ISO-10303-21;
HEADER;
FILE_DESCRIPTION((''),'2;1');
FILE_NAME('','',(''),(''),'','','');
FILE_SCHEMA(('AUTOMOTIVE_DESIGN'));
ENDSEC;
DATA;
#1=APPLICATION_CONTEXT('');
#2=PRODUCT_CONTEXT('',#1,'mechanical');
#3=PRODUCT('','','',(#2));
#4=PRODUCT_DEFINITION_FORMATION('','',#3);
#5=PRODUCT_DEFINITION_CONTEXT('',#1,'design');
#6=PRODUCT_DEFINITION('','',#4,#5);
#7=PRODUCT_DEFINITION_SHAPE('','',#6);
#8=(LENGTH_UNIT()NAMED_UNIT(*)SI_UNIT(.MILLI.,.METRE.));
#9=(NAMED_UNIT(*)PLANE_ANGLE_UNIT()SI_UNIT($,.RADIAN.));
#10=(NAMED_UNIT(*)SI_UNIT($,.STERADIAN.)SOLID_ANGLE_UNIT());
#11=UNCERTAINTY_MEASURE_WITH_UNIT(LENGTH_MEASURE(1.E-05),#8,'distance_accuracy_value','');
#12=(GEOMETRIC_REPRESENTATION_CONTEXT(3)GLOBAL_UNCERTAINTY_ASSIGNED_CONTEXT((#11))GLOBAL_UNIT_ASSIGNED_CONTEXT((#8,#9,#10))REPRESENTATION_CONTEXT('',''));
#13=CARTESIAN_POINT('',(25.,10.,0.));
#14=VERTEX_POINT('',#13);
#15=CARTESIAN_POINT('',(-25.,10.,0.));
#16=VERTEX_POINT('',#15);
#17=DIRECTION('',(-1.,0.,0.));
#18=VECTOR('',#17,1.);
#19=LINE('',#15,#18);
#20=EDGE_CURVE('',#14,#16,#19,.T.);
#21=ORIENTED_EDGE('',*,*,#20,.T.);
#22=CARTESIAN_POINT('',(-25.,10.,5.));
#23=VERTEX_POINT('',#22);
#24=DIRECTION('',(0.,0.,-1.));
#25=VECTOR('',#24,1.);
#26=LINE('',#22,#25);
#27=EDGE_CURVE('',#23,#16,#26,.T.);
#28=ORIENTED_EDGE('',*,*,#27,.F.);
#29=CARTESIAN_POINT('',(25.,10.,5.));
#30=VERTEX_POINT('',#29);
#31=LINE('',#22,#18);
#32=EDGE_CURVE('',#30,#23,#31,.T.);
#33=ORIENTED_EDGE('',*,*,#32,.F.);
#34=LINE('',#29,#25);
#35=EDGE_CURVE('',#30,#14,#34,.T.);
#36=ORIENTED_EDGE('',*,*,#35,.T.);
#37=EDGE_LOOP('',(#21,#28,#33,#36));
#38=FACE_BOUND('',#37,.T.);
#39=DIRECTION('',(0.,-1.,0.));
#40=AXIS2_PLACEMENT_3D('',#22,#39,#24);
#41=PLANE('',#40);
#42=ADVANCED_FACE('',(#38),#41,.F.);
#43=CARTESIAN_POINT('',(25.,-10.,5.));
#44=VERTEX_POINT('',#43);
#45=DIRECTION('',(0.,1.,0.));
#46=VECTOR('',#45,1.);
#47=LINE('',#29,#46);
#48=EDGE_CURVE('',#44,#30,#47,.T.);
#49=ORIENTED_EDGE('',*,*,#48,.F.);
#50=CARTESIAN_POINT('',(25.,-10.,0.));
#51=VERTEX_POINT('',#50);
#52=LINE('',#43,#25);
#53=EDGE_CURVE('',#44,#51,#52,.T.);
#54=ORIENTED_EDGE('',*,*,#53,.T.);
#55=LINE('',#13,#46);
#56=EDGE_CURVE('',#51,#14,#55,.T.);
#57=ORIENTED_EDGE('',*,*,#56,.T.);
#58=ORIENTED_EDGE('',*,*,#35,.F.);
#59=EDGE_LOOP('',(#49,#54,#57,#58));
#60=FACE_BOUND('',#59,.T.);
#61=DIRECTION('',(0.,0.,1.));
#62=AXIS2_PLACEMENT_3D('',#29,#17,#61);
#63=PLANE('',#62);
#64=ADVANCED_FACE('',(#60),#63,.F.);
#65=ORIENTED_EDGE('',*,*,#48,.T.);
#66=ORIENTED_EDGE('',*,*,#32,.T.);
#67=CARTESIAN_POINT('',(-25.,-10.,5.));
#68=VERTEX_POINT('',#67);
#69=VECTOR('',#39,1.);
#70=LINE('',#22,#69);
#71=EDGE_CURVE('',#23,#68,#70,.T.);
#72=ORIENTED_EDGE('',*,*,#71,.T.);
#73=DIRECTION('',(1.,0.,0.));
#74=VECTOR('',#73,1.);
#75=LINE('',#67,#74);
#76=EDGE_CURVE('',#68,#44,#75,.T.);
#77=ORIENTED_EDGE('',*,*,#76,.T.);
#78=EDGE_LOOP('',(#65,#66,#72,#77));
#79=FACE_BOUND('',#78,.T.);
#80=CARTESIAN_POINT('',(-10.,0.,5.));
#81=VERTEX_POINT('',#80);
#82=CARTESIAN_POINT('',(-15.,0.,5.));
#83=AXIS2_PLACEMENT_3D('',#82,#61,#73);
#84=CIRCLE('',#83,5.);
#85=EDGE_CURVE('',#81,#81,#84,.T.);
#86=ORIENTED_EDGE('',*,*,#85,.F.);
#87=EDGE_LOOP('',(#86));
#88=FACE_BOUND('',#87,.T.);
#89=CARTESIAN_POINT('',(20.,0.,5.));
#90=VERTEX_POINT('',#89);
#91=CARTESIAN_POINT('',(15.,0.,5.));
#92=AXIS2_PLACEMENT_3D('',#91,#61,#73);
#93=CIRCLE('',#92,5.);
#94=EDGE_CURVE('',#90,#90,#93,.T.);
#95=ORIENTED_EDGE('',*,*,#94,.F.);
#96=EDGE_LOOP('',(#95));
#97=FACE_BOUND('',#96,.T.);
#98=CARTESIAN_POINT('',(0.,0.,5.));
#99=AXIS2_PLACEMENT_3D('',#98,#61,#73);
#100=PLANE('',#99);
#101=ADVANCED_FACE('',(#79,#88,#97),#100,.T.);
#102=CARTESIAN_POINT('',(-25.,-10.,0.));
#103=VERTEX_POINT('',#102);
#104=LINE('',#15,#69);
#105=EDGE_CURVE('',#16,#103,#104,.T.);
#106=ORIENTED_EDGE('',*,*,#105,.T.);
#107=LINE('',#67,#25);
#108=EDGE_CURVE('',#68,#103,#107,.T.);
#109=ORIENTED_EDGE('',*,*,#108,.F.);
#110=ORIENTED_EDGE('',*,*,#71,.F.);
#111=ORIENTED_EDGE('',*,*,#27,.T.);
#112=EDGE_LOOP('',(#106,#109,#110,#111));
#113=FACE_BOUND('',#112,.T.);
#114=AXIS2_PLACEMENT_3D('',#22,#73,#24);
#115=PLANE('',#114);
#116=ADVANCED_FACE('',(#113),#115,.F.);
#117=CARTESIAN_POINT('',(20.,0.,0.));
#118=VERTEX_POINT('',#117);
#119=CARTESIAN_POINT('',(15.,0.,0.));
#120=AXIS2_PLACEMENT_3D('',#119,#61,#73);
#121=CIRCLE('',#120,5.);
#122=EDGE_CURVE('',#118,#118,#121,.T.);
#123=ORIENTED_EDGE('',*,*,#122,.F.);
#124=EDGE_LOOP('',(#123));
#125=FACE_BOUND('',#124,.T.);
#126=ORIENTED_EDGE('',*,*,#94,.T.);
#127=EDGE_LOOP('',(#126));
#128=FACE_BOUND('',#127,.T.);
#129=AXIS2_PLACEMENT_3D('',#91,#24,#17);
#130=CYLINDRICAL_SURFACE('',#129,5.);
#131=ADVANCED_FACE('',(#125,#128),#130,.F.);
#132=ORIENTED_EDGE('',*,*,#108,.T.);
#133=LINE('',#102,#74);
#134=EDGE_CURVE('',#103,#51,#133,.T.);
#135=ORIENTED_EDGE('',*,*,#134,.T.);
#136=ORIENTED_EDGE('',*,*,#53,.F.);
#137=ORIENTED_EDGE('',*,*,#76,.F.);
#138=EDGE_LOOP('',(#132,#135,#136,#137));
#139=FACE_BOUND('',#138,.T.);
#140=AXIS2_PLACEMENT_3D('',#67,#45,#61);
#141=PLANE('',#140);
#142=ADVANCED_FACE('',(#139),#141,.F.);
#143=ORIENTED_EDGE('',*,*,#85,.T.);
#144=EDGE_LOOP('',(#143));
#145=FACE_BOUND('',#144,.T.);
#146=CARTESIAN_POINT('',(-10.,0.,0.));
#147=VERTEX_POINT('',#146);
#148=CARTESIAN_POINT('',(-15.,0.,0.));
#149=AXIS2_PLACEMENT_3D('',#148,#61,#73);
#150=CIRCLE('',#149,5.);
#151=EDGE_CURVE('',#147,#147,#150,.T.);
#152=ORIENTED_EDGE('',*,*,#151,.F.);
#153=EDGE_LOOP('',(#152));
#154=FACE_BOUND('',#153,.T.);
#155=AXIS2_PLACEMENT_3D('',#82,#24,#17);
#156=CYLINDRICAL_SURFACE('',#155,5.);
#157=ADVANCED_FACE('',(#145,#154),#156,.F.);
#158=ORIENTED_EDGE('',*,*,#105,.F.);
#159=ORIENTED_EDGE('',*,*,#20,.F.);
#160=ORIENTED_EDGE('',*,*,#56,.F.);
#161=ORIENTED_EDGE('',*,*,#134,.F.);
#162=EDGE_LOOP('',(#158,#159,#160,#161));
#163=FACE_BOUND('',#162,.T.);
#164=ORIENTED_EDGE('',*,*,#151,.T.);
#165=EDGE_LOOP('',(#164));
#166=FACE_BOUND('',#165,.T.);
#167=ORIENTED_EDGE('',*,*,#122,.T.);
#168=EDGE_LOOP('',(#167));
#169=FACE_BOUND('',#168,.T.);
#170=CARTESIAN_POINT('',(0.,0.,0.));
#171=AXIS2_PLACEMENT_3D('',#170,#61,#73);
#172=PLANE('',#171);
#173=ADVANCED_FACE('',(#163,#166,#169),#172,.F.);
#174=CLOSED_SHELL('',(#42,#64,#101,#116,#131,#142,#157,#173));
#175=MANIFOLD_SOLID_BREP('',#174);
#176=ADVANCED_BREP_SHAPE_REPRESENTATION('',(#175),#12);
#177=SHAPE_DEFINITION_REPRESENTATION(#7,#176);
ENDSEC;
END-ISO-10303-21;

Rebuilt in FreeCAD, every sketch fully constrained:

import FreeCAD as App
import Part
import Sketcher

V = App.Vector
Q = App.Units.Quantity

doc = App.newDocument("Part")
body = doc.addObject("PartDesign::Body", "Body")

sketch1 = body.newObject("Sketcher::SketchObject", "Sketch")
sketch1.AttachmentSupport = (doc.getObject("XY_Plane"), [""])
sketch1.MapMode = "FlatFace"
sketch1.addGeometry([
    Part.LineSegment(V(-25, 10, 0), V(-25, -10, 0)),
    Part.LineSegment(V(-25, -10, 0), V(25, -10, 0)),
    Part.LineSegment(V(25, -10, 0), V(25, 10, 0)),
    Part.LineSegment(V(25, 10, 0), V(-25, 10, 0)),
    Part.Circle(V(-15, 0, 0), V(0, 0, 1), 5),
    Part.Circle(V(15, 0, 0), V(0, 0, 1), 5),
], False)
sketch1.addConstraint([
    Sketcher.Constraint("Coincident", 0, 2, 1, 1),
    Sketcher.Constraint("Coincident", 1, 2, 2, 1),
    Sketcher.Constraint("Coincident", 2, 2, 3, 1),
    Sketcher.Constraint("Coincident", 3, 2, 0, 1),
    Sketcher.Constraint("Vertical", 0),
    Sketcher.Constraint("Horizontal", 1),
    Sketcher.Constraint("Vertical", 2),
    Sketcher.Constraint("Horizontal", 3),
    Sketcher.Constraint("Equal", 4, 5),
    Sketcher.Constraint("Symmetric", 4, 3, 5, 3, -1, 1),
    Sketcher.Constraint("Symmetric", 0, 2, 2, 2, -1, 1),
    Sketcher.Constraint("PointOnObject", 4, 3, -1),
    Sketcher.Constraint("Diameter", 4, Q("10 mm")),
    Sketcher.Constraint("DistanceX", 1, 1, 1, 2, Q("50 mm")),
    Sketcher.Constraint("DistanceY", 0, 2, 0, 1, Q("20 mm")),
    Sketcher.Constraint("DistanceX", 4, 3, -1, 1, Q("15 mm")),
])
pad1 = body.newObject("PartDesign::Pad", "Pad")
pad1.Profile = sketch1
pad1.Length = 5

doc.recompute()
